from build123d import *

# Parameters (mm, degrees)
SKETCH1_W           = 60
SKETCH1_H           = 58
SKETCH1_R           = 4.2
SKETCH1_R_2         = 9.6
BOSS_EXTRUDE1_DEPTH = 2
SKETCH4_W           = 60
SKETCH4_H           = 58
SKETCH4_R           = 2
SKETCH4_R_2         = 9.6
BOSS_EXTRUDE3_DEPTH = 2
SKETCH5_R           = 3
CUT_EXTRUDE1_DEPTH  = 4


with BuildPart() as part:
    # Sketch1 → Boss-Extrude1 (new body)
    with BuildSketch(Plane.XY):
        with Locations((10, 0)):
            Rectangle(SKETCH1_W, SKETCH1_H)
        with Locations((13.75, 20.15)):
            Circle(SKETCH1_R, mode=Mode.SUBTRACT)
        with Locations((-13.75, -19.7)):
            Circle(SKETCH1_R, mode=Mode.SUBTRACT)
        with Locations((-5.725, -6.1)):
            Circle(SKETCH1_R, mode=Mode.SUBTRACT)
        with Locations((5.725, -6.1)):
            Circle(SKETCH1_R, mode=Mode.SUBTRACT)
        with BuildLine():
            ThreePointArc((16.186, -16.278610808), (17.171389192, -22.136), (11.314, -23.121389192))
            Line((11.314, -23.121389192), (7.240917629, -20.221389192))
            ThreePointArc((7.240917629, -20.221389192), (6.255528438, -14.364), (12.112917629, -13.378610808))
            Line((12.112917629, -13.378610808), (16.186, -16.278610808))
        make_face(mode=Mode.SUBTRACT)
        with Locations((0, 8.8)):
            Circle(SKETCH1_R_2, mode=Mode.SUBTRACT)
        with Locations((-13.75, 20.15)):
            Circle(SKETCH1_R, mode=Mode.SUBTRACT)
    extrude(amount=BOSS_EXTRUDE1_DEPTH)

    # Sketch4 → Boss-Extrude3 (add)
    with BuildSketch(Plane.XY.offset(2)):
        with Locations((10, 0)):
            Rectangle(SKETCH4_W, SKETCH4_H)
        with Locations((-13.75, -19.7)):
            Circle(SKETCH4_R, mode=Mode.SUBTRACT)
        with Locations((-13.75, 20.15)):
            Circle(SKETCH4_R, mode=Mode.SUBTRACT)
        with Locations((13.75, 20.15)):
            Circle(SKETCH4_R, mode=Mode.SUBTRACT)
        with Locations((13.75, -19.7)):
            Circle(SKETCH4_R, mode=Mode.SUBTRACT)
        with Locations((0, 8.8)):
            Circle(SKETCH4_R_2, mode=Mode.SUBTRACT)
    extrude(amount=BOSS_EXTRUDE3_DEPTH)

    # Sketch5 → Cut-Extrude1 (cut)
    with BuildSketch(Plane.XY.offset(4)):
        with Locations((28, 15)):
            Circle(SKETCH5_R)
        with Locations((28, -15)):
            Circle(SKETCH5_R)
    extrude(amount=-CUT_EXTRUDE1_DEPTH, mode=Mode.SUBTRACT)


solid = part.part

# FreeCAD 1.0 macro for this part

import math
import FreeCAD as App
import Part
import Sketcher
from FreeCAD import Vector

doc = App.newDocument("Part")
body = doc.addObject("PartDesign::Body", "Body")

# Sketch on XY plane
sketch1 = body.newObject("Sketcher::SketchObject", "Sketch")
sketch1.AttachmentSupport = (doc.getObject("XY_Plane"), [""])
sketch1.MapMode = "FlatFace"
sketch1.addGeometry([
    Part.LineSegment(Vector(-20, 29, 0), Vector(-20, -29, 0)),  # 0
    Part.LineSegment(Vector(-20, -29, 0), Vector(40, -29, 0)),  # 1
    Part.LineSegment(Vector(40, -29, 0), Vector(40, 29, 0)),  # 2
    Part.LineSegment(Vector(40, 29, 0), Vector(-20, 29, 0)),  # 3
    Part.Circle(Vector(-13.8, -19.7, 0), Vector(0, 0, 1), 4.2),  # 4
    Part.Circle(Vector(-5.7, -6.1, 0), Vector(0, 0, 1), 4.2),  # 5
    Part.LineSegment(Vector(12.1, -13.4, 0), Vector(16.2, -16.3, 0)),  # 6
    Part.ArcOfCircle(Part.Circle(Vector(13.8, -19.7, 0), Vector(0, 0, 1), 4.2), math.radians(-125), math.radians(55)),  # 7
    Part.LineSegment(Vector(11.3, -23.1, 0), Vector(7.2, -20.2, 0)),  # 8
    Part.ArcOfCircle(Part.Circle(Vector(9.7, -16.8, 0), Vector(0, 0, 1), 4.2), math.radians(55), math.radians(235)),  # 9
    Part.Circle(Vector(5.7, -6.1, 0), Vector(0, 0, 1), 4.2),  # 10
    Part.Circle(Vector(0, 8.8, 0), Vector(0, 0, 1), 9.6),  # 11
    Part.Circle(Vector(-13.8, 20.1, 0), Vector(0, 0, 1), 4.2),  # 12
    Part.Circle(Vector(13.8, 20.1, 0), Vector(0, 0, 1), 4.2),  # 13
], False)
sketch1.addConstraint([
    Sketcher.Constraint("Coincident", 0, 2, 1, 1),
    Sketcher.Constraint("Coincident", 1, 2, 2, 1),
    Sketcher.Constraint("Coincident", 2, 2, 3, 1),
    Sketcher.Constraint("Coincident", 3, 2, 0, 1),
    Sketcher.Constraint("Tangent", 6, 2, 7, 2),
    Sketcher.Constraint("Tangent", 7, 1, 8, 1),
    Sketcher.Constraint("Tangent", 8, 2, 9, 2),
    Sketcher.Constraint("Tangent", 9, 1, 6, 1),
    Sketcher.Constraint("Vertical", 0),
    Sketcher.Constraint("Horizontal", 1),
    Sketcher.Constraint("Vertical", 2),
    Sketcher.Constraint("Horizontal", 3),
    Sketcher.Constraint("Equal", 4, 5),
    Sketcher.Constraint("Equal", 5, 7),
    Sketcher.Constraint("Equal", 7, 9),
    Sketcher.Constraint("Equal", 9, 10),
    Sketcher.Constraint("Equal", 10, 12),
    Sketcher.Constraint("Equal", 12, 13),
    Sketcher.Constraint("Symmetric", 4, 3, 7, 3, -2),
    Sketcher.Constraint("Symmetric", 5, 3, 10, 3, -2),
    Sketcher.Constraint("Symmetric", 12, 3, 13, 3, -2),
    Sketcher.Constraint("PointOnObject", 11, 3, -2),
    Sketcher.Constraint("Vertical", 4, 3, 12, 3),
    Sketcher.Constraint("Diameter", 4, 8.4),
    Sketcher.Constraint("Diameter", 11, 19.2),
    Sketcher.Constraint("DistanceX", 1, 1, 1, 2, 60.0),
    Sketcher.Constraint("DistanceY", 0, 2, 0, 1, 58.0),
    Sketcher.Constraint("Distance", 6, 5.0),
    Sketcher.Constraint("DistanceX", 0, 2, -1, 1, 20.0),
    Sketcher.Constraint("DistanceY", 0, 2, -1, 1, 29.0),
    Sketcher.Constraint("DistanceY", 4, 3, -1, 1, 19.7),
    Sketcher.Constraint("DistanceY", 5, 3, -1, 1, 6.1),
    Sketcher.Constraint("DistanceY", 9, 3, -1, 1, 16.8),
    Sketcher.Constraint("DistanceY", -1, 1, 11, 3, 8.8),
    Sketcher.Constraint("DistanceX", 4, 3, 7, 3, 27.5),
    Sketcher.Constraint("DistanceY", -1, 1, 12, 3, 20.15),
    Sketcher.Constraint("DistanceX", 5, 3, 10, 3, 11.45),
])
pad1 = body.newObject("PartDesign::Pad", "Pad")
pad1.Profile = sketch1
pad1.Length = 2

# Sketch on XY plane
sketch2 = body.newObject("Sketcher::SketchObject", "Sketch001")
sketch2.AttachmentSupport = (doc.getObject("XY_Plane"), [""])
sketch2.MapMode = "FlatFace"
sketch2.AttachmentOffset = App.Placement(Vector(0, 0, 2), App.Rotation())
sketch2.addGeometry([
    Part.LineSegment(Vector(-20, 29, 0), Vector(-20, -29, 0)),  # 0
    Part.LineSegment(Vector(-20, -29, 0), Vector(40, -29, 0)),  # 1
    Part.LineSegment(Vector(40, -29, 0), Vector(40, 29, 0)),  # 2
    Part.LineSegment(Vector(40, 29, 0), Vector(-20, 29, 0)),  # 3
    Part.Circle(Vector(-13.8, -19.7, 0), Vector(0, 0, 1), 2),  # 4
    Part.Circle(Vector(13.8, -19.7, 0), Vector(0, 0, 1), 2),  # 5
    Part.Circle(Vector(-13.8, 20.1, 0), Vector(0, 0, 1), 2),  # 6
    Part.Circle(Vector(0, 8.8, 0), Vector(0, 0, 1), 9.6),  # 7
    Part.Circle(Vector(13.8, 20.1, 0), Vector(0, 0, 1), 2),  # 8
], False)
sketch2.addConstraint([
    Sketcher.Constraint("Coincident", 0, 2, 1, 1),
    Sketcher.Constraint("Coincident", 1, 2, 2, 1),
    Sketcher.Constraint("Coincident", 2, 2, 3, 1),
    Sketcher.Constraint("Coincident", 3, 2, 0, 1),
    Sketcher.Constraint("Vertical", 0),
    Sketcher.Constraint("Horizontal", 1),
    Sketcher.Constraint("Vertical", 2),
    Sketcher.Constraint("Horizontal", 3),
    Sketcher.Constraint("Equal", 4, 5),
    Sketcher.Constraint("Equal", 5, 6),
    Sketcher.Constraint("Equal", 6, 8),
    Sketcher.Constraint("Symmetric", 4, 3, 5, 3, -2),
    Sketcher.Constraint("Symmetric", 6, 3, 8, 3, -2),
    Sketcher.Constraint("PointOnObject", 7, 3, -2),
    Sketcher.Constraint("Vertical", 4, 3, 6, 3),
    Sketcher.Constraint("Diameter", 4, 4.0),
    Sketcher.Constraint("Diameter", 7, 19.2),
    Sketcher.Constraint("DistanceX", 1, 1, 1, 2, 60.0),
    Sketcher.Constraint("DistanceY", 0, 2, 0, 1, 58.0),
    Sketcher.Constraint("DistanceX", 0, 2, -1, 1, 20.0),
    Sketcher.Constraint("DistanceY", 0, 2, -1, 1, 29.0),
    Sketcher.Constraint("DistanceY", 4, 3, -1, 1, 19.7),
    Sketcher.Constraint("DistanceY", -1, 1, 7, 3, 8.8),
    Sketcher.Constraint("DistanceX", 4, 3, 5, 3, 27.5),
    Sketcher.Constraint("DistanceY", -1, 1, 6, 3, 20.15),
])
pad2 = body.newObject("PartDesign::Pad", "Pad001")
pad2.Profile = sketch2
pad2.Length = 2

# Sketch on XY plane
sketch3 = body.newObject("Sketcher::SketchObject", "Sketch002")
sketch3.AttachmentSupport = (doc.getObject("XY_Plane"), [""])
sketch3.MapMode = "FlatFace"
sketch3.AttachmentOffset = App.Placement(Vector(0, 0, 4), App.Rotation())
sketch3.addGeometry([
    Part.Circle(Vector(28, 15, 0), Vector(0, 0, 1), 3),
    Part.Circle(Vector(28, -15, 0), Vector(0, 0, 1), 3),
], False)
sketch3.addConstraint([
    Sketcher.Constraint("Equal", 0, 1),
    Sketcher.Constraint("Symmetric", 0, 3, 1, 3, -1),
    Sketcher.Constraint("Diameter", 0, 6.0),
    Sketcher.Constraint("DistanceX", -1, 1, 0, 3, 28.0),
    Sketcher.Constraint("DistanceY", -1, 1, 0, 3, 15.0),
])
pocket1 = body.newObject("PartDesign::Pocket", "Pocket")
pocket1.Profile = sketch3
pocket1.Length = 4

doc.recompute()
